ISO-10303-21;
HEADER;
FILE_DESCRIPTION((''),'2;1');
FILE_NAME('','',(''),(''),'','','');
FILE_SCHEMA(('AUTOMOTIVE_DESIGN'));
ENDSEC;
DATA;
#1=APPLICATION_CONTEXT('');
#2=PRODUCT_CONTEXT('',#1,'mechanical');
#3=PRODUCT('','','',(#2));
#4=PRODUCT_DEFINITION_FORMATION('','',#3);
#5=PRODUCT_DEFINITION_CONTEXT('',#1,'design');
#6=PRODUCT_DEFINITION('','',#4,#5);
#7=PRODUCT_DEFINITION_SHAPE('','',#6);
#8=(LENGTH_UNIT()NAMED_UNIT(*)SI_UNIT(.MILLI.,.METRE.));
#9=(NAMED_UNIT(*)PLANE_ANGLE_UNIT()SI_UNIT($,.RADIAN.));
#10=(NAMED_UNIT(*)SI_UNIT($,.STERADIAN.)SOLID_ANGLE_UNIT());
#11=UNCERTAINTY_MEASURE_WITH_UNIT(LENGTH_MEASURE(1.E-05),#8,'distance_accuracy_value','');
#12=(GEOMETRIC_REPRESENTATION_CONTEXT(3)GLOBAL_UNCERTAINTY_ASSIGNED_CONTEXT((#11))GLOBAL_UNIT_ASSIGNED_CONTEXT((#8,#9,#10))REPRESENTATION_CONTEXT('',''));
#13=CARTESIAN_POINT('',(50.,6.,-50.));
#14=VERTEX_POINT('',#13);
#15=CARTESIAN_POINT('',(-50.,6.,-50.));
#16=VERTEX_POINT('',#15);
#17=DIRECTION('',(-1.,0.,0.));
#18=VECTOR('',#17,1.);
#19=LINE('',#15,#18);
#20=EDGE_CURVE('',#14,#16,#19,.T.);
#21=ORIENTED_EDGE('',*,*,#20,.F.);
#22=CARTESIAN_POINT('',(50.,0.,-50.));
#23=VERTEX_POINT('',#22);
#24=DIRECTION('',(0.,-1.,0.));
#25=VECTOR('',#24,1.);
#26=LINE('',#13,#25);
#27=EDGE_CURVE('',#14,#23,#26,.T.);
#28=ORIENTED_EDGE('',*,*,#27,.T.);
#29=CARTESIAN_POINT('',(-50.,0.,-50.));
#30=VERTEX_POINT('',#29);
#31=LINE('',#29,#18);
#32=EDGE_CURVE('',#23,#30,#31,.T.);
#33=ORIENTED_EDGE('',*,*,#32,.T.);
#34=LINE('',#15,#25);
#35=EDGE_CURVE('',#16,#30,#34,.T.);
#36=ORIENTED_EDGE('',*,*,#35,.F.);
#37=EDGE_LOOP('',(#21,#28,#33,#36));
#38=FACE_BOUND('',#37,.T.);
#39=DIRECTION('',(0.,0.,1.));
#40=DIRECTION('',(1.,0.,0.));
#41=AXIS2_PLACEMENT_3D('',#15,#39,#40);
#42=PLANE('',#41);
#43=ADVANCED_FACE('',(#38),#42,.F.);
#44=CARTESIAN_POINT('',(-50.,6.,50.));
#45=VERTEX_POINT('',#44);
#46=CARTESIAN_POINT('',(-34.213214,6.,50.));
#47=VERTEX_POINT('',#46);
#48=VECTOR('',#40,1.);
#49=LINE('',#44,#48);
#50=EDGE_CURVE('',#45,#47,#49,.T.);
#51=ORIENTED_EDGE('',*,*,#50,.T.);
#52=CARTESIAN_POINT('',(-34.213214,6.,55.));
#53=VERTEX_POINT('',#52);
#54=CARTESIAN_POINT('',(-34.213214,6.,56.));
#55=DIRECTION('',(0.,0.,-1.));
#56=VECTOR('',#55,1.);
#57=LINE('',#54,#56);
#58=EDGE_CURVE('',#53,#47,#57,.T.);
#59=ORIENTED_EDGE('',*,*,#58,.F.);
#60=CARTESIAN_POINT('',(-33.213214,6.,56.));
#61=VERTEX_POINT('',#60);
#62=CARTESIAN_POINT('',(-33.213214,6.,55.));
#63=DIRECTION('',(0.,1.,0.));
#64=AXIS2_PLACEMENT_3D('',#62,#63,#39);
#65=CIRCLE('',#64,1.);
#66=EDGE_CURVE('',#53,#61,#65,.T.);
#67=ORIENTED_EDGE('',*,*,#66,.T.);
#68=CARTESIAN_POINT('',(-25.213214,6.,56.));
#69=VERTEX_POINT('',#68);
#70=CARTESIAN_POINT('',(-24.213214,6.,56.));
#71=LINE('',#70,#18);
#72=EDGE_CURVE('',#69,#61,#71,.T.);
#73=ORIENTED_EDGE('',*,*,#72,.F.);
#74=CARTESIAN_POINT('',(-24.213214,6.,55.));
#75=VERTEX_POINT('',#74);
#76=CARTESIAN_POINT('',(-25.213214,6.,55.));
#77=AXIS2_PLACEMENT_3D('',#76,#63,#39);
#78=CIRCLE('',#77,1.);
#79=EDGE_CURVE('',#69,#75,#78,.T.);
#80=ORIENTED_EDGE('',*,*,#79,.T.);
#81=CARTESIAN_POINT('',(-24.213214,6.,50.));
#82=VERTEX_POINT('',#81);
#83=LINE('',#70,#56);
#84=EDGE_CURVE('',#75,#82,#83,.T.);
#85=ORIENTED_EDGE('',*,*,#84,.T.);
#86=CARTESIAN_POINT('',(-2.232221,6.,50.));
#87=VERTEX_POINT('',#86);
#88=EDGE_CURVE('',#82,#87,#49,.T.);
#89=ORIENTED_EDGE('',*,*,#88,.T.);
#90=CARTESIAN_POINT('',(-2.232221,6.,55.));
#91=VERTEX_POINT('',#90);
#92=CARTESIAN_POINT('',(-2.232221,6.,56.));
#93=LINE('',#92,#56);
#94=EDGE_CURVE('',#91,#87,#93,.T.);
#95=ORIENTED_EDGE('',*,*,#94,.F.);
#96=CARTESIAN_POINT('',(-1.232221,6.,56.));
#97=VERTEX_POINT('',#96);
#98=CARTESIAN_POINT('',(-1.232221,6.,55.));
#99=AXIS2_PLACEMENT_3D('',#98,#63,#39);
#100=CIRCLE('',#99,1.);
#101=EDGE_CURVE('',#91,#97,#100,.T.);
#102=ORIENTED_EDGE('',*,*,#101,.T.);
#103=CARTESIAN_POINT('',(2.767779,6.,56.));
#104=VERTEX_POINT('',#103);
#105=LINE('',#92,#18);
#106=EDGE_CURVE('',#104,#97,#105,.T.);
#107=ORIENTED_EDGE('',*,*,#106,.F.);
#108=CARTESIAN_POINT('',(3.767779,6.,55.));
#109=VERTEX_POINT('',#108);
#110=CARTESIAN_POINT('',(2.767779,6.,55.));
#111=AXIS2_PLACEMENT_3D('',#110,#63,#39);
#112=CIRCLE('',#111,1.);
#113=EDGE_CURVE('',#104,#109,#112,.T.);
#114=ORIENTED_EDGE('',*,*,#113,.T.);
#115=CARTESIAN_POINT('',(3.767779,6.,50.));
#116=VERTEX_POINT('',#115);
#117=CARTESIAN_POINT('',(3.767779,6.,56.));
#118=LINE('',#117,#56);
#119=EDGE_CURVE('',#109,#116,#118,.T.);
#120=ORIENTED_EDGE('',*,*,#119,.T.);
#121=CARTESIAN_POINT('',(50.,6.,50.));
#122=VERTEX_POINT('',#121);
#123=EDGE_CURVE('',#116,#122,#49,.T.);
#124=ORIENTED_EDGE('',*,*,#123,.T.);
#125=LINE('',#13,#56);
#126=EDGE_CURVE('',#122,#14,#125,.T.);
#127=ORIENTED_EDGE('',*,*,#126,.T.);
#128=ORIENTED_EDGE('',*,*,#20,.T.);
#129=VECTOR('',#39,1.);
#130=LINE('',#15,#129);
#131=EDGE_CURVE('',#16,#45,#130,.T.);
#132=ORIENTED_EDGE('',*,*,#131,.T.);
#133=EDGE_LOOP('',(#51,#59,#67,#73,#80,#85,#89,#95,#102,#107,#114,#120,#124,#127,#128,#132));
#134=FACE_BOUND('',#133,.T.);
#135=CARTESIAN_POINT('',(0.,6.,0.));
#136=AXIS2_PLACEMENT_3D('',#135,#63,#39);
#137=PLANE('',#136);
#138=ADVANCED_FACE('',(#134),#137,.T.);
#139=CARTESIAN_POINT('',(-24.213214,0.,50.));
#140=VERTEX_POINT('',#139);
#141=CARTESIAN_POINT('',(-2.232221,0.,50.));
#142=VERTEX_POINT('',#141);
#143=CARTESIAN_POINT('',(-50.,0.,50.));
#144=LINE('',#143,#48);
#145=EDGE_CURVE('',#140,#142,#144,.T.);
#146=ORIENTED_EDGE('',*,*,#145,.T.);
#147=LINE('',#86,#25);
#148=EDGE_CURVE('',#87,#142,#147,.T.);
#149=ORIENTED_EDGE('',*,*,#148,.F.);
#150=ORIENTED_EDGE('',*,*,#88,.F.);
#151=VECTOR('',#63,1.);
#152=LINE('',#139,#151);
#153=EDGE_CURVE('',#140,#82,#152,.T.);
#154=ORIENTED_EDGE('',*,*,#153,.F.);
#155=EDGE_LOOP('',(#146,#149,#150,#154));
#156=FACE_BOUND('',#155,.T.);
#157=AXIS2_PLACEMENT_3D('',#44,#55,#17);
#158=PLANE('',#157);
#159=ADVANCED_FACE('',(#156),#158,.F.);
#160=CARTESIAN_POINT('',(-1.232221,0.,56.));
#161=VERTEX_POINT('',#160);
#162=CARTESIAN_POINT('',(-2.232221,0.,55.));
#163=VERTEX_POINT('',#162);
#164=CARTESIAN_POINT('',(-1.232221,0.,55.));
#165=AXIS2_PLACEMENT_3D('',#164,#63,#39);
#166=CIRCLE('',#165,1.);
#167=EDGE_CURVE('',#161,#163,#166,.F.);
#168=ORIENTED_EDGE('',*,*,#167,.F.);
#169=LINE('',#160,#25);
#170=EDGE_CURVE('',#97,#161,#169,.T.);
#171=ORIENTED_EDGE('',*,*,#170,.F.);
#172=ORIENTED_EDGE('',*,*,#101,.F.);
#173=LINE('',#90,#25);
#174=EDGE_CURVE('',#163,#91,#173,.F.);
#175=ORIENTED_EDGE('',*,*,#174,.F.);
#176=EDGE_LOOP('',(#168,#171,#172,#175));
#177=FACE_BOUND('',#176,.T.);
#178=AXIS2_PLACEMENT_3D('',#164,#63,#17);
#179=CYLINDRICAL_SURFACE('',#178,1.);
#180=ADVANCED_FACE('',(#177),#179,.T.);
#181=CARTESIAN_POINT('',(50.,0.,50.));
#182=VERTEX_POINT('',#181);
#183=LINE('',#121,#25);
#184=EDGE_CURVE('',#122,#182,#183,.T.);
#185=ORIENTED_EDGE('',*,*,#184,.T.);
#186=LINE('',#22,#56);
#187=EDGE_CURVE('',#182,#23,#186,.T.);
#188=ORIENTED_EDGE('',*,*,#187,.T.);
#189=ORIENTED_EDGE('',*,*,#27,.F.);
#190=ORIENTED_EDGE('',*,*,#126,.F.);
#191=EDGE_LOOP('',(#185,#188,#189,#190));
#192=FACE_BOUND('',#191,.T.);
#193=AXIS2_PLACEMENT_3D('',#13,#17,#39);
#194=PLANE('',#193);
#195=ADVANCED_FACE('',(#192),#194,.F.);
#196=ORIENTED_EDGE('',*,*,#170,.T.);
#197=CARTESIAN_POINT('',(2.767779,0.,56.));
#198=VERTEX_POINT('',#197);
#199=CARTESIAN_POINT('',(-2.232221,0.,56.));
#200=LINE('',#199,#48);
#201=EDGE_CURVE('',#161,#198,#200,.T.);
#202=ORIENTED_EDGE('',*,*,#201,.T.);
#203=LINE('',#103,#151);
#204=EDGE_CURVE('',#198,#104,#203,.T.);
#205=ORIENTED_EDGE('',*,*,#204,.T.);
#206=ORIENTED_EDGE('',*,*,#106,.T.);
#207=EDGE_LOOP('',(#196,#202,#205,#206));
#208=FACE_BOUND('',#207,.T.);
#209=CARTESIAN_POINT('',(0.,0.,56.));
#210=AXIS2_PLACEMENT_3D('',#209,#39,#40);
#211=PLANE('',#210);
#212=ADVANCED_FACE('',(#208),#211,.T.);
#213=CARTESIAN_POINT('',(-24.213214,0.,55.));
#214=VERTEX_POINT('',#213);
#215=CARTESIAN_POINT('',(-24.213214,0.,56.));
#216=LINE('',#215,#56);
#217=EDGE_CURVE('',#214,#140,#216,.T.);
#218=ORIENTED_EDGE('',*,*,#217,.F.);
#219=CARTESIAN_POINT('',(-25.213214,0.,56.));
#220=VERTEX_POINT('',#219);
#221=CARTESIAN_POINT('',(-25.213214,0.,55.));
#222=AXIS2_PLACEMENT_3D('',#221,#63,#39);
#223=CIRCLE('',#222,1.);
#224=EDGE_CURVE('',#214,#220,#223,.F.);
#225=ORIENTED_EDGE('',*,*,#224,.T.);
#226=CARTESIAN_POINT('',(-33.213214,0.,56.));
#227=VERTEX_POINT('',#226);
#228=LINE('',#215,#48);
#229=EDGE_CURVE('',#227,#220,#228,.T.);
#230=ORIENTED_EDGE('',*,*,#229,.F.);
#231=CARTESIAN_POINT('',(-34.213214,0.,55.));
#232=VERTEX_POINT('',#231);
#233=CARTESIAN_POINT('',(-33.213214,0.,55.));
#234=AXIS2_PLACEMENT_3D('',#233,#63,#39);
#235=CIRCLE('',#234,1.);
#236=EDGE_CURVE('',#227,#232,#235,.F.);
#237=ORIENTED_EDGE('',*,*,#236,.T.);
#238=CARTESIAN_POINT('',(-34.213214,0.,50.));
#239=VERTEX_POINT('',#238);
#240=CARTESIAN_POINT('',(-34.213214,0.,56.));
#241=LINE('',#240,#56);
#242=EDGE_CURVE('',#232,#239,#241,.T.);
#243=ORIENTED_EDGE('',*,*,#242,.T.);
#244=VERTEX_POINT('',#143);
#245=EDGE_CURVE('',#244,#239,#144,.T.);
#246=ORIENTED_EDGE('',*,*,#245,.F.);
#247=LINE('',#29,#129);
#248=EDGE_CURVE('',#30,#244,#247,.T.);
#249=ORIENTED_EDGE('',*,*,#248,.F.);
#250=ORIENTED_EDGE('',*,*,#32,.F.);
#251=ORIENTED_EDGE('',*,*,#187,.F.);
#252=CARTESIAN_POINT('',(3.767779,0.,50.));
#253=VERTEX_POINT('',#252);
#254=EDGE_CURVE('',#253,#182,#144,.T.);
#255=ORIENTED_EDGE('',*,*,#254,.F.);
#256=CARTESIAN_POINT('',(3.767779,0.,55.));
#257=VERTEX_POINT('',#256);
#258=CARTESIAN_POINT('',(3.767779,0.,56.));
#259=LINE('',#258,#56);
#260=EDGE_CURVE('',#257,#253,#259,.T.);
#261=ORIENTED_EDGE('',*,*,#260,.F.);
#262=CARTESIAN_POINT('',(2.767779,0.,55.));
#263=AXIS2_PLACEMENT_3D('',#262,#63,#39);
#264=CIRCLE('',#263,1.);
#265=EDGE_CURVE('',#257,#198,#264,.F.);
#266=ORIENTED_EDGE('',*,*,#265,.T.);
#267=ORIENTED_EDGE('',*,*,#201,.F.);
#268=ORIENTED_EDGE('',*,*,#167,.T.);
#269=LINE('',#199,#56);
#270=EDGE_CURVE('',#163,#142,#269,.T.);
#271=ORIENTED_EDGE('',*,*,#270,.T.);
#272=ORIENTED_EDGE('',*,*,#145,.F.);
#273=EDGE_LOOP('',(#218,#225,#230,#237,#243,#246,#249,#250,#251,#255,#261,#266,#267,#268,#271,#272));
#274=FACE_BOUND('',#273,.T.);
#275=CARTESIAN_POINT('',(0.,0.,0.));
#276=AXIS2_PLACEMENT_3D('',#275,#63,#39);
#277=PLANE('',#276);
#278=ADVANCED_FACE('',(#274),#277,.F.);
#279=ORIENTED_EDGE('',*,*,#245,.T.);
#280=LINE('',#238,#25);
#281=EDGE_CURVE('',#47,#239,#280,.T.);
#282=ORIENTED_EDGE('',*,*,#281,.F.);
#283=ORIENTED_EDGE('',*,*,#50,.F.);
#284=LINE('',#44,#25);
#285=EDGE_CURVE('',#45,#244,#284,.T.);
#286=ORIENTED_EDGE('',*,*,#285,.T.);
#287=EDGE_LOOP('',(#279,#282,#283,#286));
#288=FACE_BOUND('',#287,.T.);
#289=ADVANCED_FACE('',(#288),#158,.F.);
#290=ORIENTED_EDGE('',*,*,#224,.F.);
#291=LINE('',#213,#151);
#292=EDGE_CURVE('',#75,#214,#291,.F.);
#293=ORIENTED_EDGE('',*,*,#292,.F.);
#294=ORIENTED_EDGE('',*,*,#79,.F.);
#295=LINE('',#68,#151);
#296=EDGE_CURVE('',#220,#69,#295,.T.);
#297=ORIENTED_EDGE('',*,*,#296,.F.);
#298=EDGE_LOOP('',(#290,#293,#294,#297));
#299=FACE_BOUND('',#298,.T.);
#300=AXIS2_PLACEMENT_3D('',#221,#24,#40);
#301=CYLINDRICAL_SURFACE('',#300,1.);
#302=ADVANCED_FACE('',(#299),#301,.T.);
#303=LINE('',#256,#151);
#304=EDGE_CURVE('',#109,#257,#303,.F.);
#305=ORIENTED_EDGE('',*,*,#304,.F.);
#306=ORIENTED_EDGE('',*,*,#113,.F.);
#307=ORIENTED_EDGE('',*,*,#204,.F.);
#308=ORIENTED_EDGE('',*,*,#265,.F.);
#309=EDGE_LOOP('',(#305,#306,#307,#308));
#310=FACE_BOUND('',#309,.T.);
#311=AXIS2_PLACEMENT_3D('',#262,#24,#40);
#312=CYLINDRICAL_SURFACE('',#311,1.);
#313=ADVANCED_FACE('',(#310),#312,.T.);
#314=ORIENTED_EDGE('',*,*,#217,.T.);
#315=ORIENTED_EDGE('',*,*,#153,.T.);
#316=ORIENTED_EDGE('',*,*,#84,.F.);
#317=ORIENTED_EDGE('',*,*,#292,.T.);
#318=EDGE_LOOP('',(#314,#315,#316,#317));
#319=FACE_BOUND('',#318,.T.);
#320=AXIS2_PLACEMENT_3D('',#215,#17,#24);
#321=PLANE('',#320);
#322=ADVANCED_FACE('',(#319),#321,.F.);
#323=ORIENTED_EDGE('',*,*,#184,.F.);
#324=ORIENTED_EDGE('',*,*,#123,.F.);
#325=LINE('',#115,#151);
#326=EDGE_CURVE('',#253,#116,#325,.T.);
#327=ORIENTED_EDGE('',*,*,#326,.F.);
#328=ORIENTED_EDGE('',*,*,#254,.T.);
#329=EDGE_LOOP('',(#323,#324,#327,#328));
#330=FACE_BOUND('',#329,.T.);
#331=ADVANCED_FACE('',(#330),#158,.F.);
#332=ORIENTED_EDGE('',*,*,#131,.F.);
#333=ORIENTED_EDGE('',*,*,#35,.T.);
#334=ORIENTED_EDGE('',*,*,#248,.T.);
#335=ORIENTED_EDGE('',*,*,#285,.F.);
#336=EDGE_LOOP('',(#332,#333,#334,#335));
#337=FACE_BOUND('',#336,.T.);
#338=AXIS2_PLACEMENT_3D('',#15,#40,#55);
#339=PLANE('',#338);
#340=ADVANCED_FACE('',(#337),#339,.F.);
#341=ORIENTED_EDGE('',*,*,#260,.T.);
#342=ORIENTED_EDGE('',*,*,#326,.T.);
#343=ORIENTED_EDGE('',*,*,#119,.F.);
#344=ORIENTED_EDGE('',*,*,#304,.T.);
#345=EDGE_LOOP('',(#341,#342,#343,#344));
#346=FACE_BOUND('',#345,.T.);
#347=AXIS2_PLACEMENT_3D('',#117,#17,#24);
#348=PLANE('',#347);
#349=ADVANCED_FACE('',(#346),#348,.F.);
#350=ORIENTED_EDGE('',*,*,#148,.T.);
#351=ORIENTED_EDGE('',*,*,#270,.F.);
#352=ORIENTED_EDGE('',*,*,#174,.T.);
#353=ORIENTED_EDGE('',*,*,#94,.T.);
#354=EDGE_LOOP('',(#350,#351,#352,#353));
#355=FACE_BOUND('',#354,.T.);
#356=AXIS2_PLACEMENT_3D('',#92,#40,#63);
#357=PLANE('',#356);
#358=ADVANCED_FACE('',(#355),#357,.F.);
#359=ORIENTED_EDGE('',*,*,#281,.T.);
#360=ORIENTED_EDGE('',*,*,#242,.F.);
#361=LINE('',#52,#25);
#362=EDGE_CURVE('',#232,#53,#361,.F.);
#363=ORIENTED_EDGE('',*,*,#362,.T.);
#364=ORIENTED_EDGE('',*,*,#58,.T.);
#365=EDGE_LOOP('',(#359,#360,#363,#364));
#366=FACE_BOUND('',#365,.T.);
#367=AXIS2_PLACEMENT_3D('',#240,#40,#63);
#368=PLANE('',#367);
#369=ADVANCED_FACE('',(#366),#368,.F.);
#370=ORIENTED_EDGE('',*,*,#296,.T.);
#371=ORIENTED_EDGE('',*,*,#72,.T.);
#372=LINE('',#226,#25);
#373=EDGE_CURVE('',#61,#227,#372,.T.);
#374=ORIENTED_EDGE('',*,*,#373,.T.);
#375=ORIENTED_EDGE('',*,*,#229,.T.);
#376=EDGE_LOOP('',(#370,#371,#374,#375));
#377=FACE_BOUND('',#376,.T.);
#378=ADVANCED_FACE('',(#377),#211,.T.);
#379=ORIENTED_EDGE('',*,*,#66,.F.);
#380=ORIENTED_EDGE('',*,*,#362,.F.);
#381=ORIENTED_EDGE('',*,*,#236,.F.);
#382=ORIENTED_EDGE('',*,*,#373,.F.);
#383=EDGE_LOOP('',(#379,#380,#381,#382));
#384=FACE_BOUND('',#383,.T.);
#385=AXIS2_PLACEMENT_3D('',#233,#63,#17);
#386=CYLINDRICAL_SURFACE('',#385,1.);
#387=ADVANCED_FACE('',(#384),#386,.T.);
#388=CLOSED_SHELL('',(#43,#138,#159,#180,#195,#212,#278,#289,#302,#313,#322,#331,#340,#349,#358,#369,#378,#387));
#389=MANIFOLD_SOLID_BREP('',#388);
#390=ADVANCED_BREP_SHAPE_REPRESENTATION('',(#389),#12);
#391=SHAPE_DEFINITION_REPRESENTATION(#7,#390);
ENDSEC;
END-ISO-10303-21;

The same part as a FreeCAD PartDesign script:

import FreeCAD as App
import Part
import Sketcher
from FreeCAD import Vector


def edges_at(feature, points):
    """Names of the edges that pass closest to the given points."""
    edges = feature.Shape.Edges
    near = lambda p: min(range(len(edges)), key=lambda i: edges[i].distToShape(Part.Vertex(*p))[0])
    return sorted({f"Edge{near(p) + 1}" for p in points})

doc = App.newDocument("Part")
body = doc.addObject("PartDesign::Body", "Body")

sketch1 = body.newObject("Sketcher::SketchObject", "Sketch")
sketch1.AttachmentSupport = (doc.getObject("XZ_Plane"), [""])
sketch1.MapMode = "FlatFace"
sketch1.addGeometry([
    Part.LineSegment(Vector(-50, -50, 0), Vector(-50, 50, 0)),
    Part.LineSegment(Vector(-50, 50, 0), Vector(50, 50, 0)),
    Part.LineSegment(Vector(50, 50, 0), Vector(50, -50, 0)),
    Part.LineSegment(Vector(50, -50, 0), Vector(-50, -50, 0)),
], False)
sketch1.addConstraint([
    Sketcher.Constraint("Coincident", 0, 2, 1, 1),
    Sketcher.Constraint("Coincident", 1, 2, 2, 1),
    Sketcher.Constraint("Coincident", 2, 2, 3, 1),
    Sketcher.Constraint("Coincident", 3, 2, 0, 1),
    Sketcher.Constraint("Vertical", 0),
    Sketcher.Constraint("Horizontal", 1),
    Sketcher.Constraint("Vertical", 2),
    Sketcher.Constraint("Horizontal", 3),
    Sketcher.Constraint("Symmetric", 0, 2, 2, 2, -1, 1),
    Sketcher.Constraint("Equal", 3, 0),
    Sketcher.Constraint("DistanceX", 1, 1, 1, 2, 100.0),
])
pad1 = body.newObject("PartDesign::Pad", "Pad")
pad1.Profile = sketch1
pad1.Length = 6
pad1.Reversed = True

sketch2 = body.newObject("Sketcher::SketchObject", "Sketch001")
sketch2.AttachmentSupport = (doc.getObject("XY_Plane"), [""])
sketch2.MapMode = "FlatFace"
sketch2.AttachmentOffset = App.Placement(Vector(0, 0, 50), App.Rotation())
sketch2.addGeometry([
    Part.LineSegment(Vector(-2, 6, 0), Vector(-2, 0, 0)),
    Part.LineSegment(Vector(-2, 0, 0), Vector(4, 0, 0)),
    Part.LineSegment(Vector(4, 0, 0), Vector(4, 6, 0)),
    Part.LineSegment(Vector(4, 6, 0), Vector(-2, 6, 0)),
], False)
sketch2.addConstraint([
    Sketcher.Constraint("Coincident", 0, 2, 1, 1),
    Sketcher.Constraint("Coincident", 1, 2, 2, 1),
    Sketcher.Constraint("Coincident", 2, 2, 3, 1),
    Sketcher.Constraint("Coincident", 3, 2, 0, 1),
    Sketcher.Constraint("Vertical", 0),
    Sketcher.Constraint("Horizontal", 1),
    Sketcher.Constraint("Vertical", 2),
    Sketcher.Constraint("Horizontal", 3),
    Sketcher.Constraint("PointOnObject", 0, 2, -1),
    Sketcher.Constraint("Equal", 3, 0),
    Sketcher.Constraint("DistanceX", 1, 1, 1, 2, 6.0),
    Sketcher.Constraint("DistanceX", 0, 2, -1, 1, 2.232221),
])
pad2 = body.newObject("PartDesign::Pad", "Pad001")
pad2.Profile = sketch2
pad2.Length = 6
doc.recompute()

fillet = body.newObject("PartDesign::Fillet", "Fillet")
fillet.Base = (pad2, edges_at(pad2, [(-2.232, 3, 56), (3.768, 3, 56)]))
fillet.Radius = 1

sketch3 = body.newObject("Sketcher::SketchObject", "Sketch002")
sketch3.AttachmentSupport = (doc.getObject("XY_Plane"), [""])
sketch3.MapMode = "FlatFace"
sketch3.AttachmentOffset = App.Placement(Vector(0, 0, 50), App.Rotation())
sketch3.addGeometry([
    Part.LineSegment(Vector(-24, 0, 0), Vector(-24, 6, 0)),
    Part.LineSegment(Vector(-24, 6, 0), Vector(-34, 6, 0)),
    Part.LineSegment(Vector(-34, 6, 0), Vector(-34, 0, 0)),
    Part.LineSegment(Vector(-34, 0, 0), Vector(-24, 0, 0)),
], False)
sketch3.addConstraint([
    Sketcher.Constraint("Coincident", 0, 2, 1, 1),
    Sketcher.Constraint("Coincident", 1, 2, 2, 1),
    Sketcher.Constraint("Coincident", 2, 2, 3, 1),
    Sketcher.Constraint("Coincident", 3, 2, 0, 1),
    Sketcher.Constraint("Vertical", 0),
    Sketcher.Constraint("Horizontal", 1),
    Sketcher.Constraint("Vertical", 2),
    Sketcher.Constraint("Horizontal", 3),
    Sketcher.Constraint("PointOnObject", 2, 2, -1),
    Sketcher.Constraint("DistanceX", 1, 2, 1, 1, 10.0),
    Sketcher.Constraint("DistanceY", 0, 1, 0, 2, 6.0),
    Sketcher.Constraint("DistanceX", 0, 2, -1, 1, 24.213214),
])
pad3 = body.newObject("PartDesign::Pad", "Pad002")
pad3.Profile = sketch3
pad3.Length = 6
doc.recompute()

fillet2 = body.newObject("PartDesign::Fillet", "Fillet001")
fillet2.Base = (pad3, edges_at(pad3, [(-34.213, 3, 56), (-24.213, 3, 56)]))
fillet2.Radius = 1

doc.recompute()
